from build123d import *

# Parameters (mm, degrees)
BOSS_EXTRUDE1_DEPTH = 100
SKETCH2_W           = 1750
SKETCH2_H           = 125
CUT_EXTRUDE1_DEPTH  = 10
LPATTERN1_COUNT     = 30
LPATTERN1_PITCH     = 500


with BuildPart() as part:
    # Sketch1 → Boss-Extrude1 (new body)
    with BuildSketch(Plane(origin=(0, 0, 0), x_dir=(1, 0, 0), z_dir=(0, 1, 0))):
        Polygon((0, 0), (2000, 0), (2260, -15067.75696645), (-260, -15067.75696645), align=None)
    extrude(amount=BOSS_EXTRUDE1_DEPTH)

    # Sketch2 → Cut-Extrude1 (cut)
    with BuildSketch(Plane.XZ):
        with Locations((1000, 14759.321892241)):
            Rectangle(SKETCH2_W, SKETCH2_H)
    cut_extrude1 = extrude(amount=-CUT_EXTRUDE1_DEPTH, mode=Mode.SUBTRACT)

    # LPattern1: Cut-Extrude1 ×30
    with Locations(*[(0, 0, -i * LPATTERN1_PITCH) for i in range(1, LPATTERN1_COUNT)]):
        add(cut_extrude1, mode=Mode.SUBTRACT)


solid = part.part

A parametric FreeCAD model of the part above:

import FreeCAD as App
import Part
import Sketcher

doc = App.newDocument("Part")
body = doc.addObject("PartDesign::Body", "Body")

# Sketch on XZ plane
sketch1 = body.newObject("Sketcher::SketchObject", "Sketch")
sketch1.AttachmentSupport = (doc.getObject("XZ_Plane"), [""])
sketch1.MapMode = "FlatFace"
sketch1.addGeometry([
    Part.LineSegment(App.Vector(2000, 0, 0), App.Vector(0, 0, 0)),
    Part.LineSegment(App.Vector(0, 0, 0), App.Vector(-260, 15068, 0)),
    Part.LineSegment(App.Vector(-260, 15068, 0), App.Vector(2260, 15068, 0)),
    Part.LineSegment(App.Vector(2260, 15068, 0), App.Vector(2000, 0, 0)),
], False)
sketch1.addConstraint([
    Sketcher.Constraint("Coincident", 0, 2, 1, 1),
    Sketcher.Constraint("Coincident", 1, 2, 2, 1),
    Sketcher.Constraint("Coincident", 2, 2, 3, 1),
    Sketcher.Constraint("Coincident", 3, 2, 0, 1),
    Sketcher.Constraint("Horizontal", 0),
    Sketcher.Constraint("Horizontal", 2),
    Sketcher.Constraint("Coincident", 0, 2, -1, 1),
    Sketcher.Constraint("Equal", 1, 3),
    Sketcher.Constraint("DistanceX", 0, 2, 0, 1, 2000.0),
    Sketcher.Constraint("DistanceX", 2, 1, 2, 2, 2520.0),
    Sketcher.Constraint("Distance", 1, 15070.0),
])
pad1 = body.newObject("PartDesign::Pad", "Pad")
pad1.Profile = sketch1
pad1.Length = 100
pad1.Reversed = True

# Sketch on XZ plane
sketch2 = body.newObject("Sketcher::SketchObject", "Sketch001")
sketch2.AttachmentSupport = (doc.getObject("XZ_Plane"), [""])
sketch2.MapMode = "FlatFace"
sketch2.addGeometry([
    Part.LineSegment(App.Vector(125, 14822, 0), App.Vector(125, 14697, 0)),
    Part.LineSegment(App.Vector(125, 14697, 0), App.Vector(1875, 14697, 0)),
    Part.LineSegment(App.Vector(1875, 14697, 0), App.Vector(1875, 14822, 0)),
    Part.LineSegment(App.Vector(1875, 14822, 0), App.Vector(125, 14822, 0)),
], False)
sketch2.addConstraint([
    Sketcher.Constraint("Coincident", 0, 2, 1, 1),
    Sketcher.Constraint("Coincident", 1, 2, 2, 1),
    Sketcher.Constraint("Coincident", 2, 2, 3, 1),
    Sketcher.Constraint("Coincident", 3, 2, 0, 1),
    Sketcher.Constraint("Vertical", 0),
    Sketcher.Constraint("Horizontal", 1),
    Sketcher.Constraint("Vertical", 2),
    Sketcher.Constraint("Horizontal", 3),
    Sketcher.Constraint("DistanceX", 1, 1, 1, 2, 1750.0),
    Sketcher.Constraint("DistanceY", 0, 2, 0, 1, 125.0),
    Sketcher.Constraint("DistanceX", -1, 1, 0, 2, 125.0),
    Sketcher.Constraint("DistanceY", -1, 1, 0, 2, 14696.821892),
])
pocket1 = body.newObject("PartDesign::Pocket", "Pocket")
pocket1.Profile = sketch2
pocket1.Length = 10
doc.recompute()

linearpattern = body.newObject("PartDesign::LinearPattern", "LinearPattern")
linearpattern.Originals = [pocket1]
linearpattern.Direction = (doc.getObject("Z_Axis"), [""])
linearpattern.Mode = "offset"
linearpattern.Offset = 500
linearpattern.Occurrences = 30
linearpattern.Reversed = True
body.Tip = linearpattern

doc.recompute()
